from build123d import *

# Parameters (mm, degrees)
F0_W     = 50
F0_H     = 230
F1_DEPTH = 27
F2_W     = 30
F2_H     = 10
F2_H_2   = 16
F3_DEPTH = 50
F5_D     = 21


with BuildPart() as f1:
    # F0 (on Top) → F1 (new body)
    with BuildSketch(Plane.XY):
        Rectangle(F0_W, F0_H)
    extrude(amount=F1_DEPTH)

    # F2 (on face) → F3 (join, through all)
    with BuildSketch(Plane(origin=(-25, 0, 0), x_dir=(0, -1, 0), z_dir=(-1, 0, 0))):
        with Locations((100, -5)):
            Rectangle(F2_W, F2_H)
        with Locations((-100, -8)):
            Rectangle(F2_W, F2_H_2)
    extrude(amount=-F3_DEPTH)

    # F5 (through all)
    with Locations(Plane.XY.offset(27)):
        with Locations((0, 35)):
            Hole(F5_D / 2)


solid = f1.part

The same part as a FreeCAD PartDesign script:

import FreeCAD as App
import Part
import Sketcher
from FreeCAD import Vector


def add_polygon(sketch, points):
    """Adds a closed chain of lines whose ends are joined by coincident constraints."""
    first, n = sketch.GeometryCount, len(points)
    for a, b in zip(points, points[1:] + points[:1]):
        sketch.addGeometry(Part.LineSegment(App.Vector(*a, 0), App.Vector(*b, 0)), False)
    for i in range(n):
        sketch.addConstraint(Sketcher.Constraint("Coincident", first + i, 2, first + (i + 1) % n, 1))

doc = App.newDocument("Part")
body = doc.addObject("PartDesign::Body", "Body")

sketch1 = body.newObject("Sketcher::SketchObject", "Sketch")
sketch1.AttachmentSupport = (doc.getObject("XY_Plane"), [""])
sketch1.MapMode = "FlatFace"
add_polygon(sketch1, [(-25, 115), (-25, -115), (25, -115), (25, 115)])
sketch1.addConstraint(Sketcher.Constraint("Vertical", 0))
sketch1.addConstraint(Sketcher.Constraint("Horizontal", 1))
sketch1.addConstraint(Sketcher.Constraint("Vertical", 2))
sketch1.addConstraint(Sketcher.Constraint("Horizontal", 3))
sketch1.addConstraint(Sketcher.Constraint("Symmetric", 0, 2, 2, 2, -1, 1))
sketch1.addConstraint(Sketcher.Constraint("DistanceX", 1, 1, 1, 2, 50.0))
sketch1.addConstraint(Sketcher.Constraint("DistanceY", 0, 2, 0, 1, 230.0))
pad1 = body.newObject("PartDesign::Pad", "Pad")
pad1.Profile = sketch1
pad1.Length = 27

sketch2 = body.newObject("Sketcher::SketchObject", "Sketch001")
sketch2.AttachmentSupport = (doc.getObject("YZ_Plane"), [""])
sketch2.MapMode = "FlatFace"
sketch2.AttachmentOffset = App.Placement(Vector(0, 0, -25), App.Rotation())
add_polygon(sketch2, [(-85, 0), (-85, -10), (-115, -10), (-115, 0)])
add_polygon(sketch2, [(115, 0), (115, -16), (85, -16), (85, 0)])
sketch2.addConstraint(Sketcher.Constraint("Vertical", 0))
sketch2.addConstraint(Sketcher.Constraint("Horizontal", 1))
sketch2.addConstraint(Sketcher.Constraint("Vertical", 2))
sketch2.addConstraint(Sketcher.Constraint("Horizontal", 3))
sketch2.addConstraint(Sketcher.Constraint("Vertical", 4))
sketch2.addConstraint(Sketcher.Constraint("Horizontal", 5))
sketch2.addConstraint(Sketcher.Constraint("Vertical", 6))
sketch2.addConstraint(Sketcher.Constraint("Horizontal", 7))
sketch2.addConstraint(Sketcher.Constraint("Symmetric", 3, 2, 6, 2, -1, 1))
sketch2.addConstraint(Sketcher.Constraint("Symmetric", 2, 2, 7, 2, -2))
sketch2.addConstraint(Sketcher.Constraint("DistanceX", 1, 2, 1, 1, 30.0))
sketch2.addConstraint(Sketcher.Constraint("DistanceY", 0, 2, 0, 1, 10.0))
sketch2.addConstraint(Sketcher.Constraint("DistanceY", 4, 2, 4, 1, 16.0))
sketch2.addConstraint(Sketcher.Constraint("DistanceX", 0, 2, -1, 1, 85.0))
pad2 = body.newObject("PartDesign::Pad", "Pad001")
pad2.Profile = sketch2
pad2.Length = 50

sketch3 = body.newObject("Sketcher::SketchObject", "Sketch002")
sketch3.AttachmentSupport = (doc.getObject("XY_Plane"), [""])
sketch3.MapMode = "FlatFace"
sketch3.AttachmentOffset = App.Placement(Vector(0, 0, 27), App.Rotation())
sketch3.addGeometry(Part.Circle(Vector(0, 35, 0), Vector(0, 0, 1), 10), False)
sketch3.addConstraint(Sketcher.Constraint("PointOnObject", 0, 3, -2))
sketch3.addConstraint(Sketcher.Constraint("Diameter", 0, 21.0))
sketch3.addConstraint(Sketcher.Constraint("DistanceY", -1, 1, 0, 3, 35.0))
doc.recompute()
hole = body.newObject("PartDesign::Hole", "Hole")
hole.Profile = sketch3
hole.ThreadType = "None"
hole.Diameter = 21
hole.DepthType = "ThroughAll"

doc.recompute()
